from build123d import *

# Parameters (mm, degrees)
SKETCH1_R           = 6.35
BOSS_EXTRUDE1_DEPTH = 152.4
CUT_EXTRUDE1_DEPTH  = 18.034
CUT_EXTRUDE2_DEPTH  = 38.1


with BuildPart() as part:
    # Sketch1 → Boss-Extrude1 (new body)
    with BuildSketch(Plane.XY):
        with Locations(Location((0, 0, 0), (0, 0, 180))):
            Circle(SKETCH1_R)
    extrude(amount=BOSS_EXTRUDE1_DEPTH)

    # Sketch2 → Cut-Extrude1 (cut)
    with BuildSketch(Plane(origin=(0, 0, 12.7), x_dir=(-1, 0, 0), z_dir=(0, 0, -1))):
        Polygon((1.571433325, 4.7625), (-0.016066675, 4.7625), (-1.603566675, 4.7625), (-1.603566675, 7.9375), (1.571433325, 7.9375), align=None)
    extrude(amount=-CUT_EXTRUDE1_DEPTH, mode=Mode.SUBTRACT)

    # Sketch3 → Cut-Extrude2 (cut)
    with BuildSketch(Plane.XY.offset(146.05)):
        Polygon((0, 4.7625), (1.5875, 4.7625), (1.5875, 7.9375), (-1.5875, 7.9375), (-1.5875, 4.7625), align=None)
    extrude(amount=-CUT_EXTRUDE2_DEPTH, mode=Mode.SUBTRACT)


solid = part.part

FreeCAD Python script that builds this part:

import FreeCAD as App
import Part
import Sketcher
from FreeCAD import Vector
Q = App.Units.Quantity

doc = App.newDocument("Part")
params = doc.addObject("Spreadsheet::Sheet", "Params")
for row, (alias, value) in enumerate([
    ("sketch1_diameter", "0.5 in"),
    ("pad1_length", "6 in"),
    ("sketch2_width", "0.125 in"),
    ("pocket1_length", "0.71 in"),
    ("sketch3_width", "0.125 in"),
    ("pocket2_length", "1.5 in"),
], start=1):
    params.set(f"A{row}", alias)
    params.set(f"B{row}", "=" + value)
    params.setAlias(f"B{row}", alias)

body = doc.addObject("PartDesign::Body", "Body")

sketch1 = doc.addObject("Sketcher::SketchObject", "Sketch")
body.addObject(sketch1)
sketch1.AttachmentSupport = (doc.XY_Plane, [""])
sketch1.MapMode = "FlatFace"
sketch1.addGeometry(Part.Circle(Vector(0, 0, 0), Vector(0, 0, 1), 6), False)
sketch1.addConstraint([
    Sketcher.Constraint("Coincident", 0, 3, -1, 1),
    Sketcher.Constraint("Diameter", 0, Q("0.5 in")),
])
sketch1.setExpression("Constraints[1]", "Params.sketch1_diameter")
pad1 = doc.addObject("PartDesign::Pad", "Pad")
body.addObject(pad1)
pad1.Profile = sketch1
pad1.setExpression("Length", "Params.pad1_length")

sketch2 = doc.addObject("Sketcher::SketchObject", "Sketch001")
body.addObject(sketch2)
sketch2.AttachmentSupport = (doc.XY_Plane, [""])
sketch2.MapMode = "FlatFace"
sketch2.AttachmentOffset = App.Placement(Vector(0, 0, 0.5 * 25.4), App.Rotation())
sketch2.addGeometry([
    Part.LineSegment(Vector(1.6, 4.8, 0), Vector(-1.6, 4.8, 0)),
    Part.LineSegment(Vector(-1.6, 4.8, 0), Vector(-1.6, 7.9, 0)),
    Part.LineSegment(Vector(-1.6, 7.9, 0), Vector(1.6, 7.9, 0)),
    Part.LineSegment(Vector(1.6, 7.9, 0), Vector(1.6, 4.8, 0)),
], False)
sketch2.addConstraint([
    Sketcher.Constraint("Coincident", 0, 2, 1, 1),
    Sketcher.Constraint("Coincident", 1, 2, 2, 1),
    Sketcher.Constraint("Coincident", 2, 2, 3, 1),
    Sketcher.Constraint("Coincident", 3, 2, 0, 1),
    Sketcher.Constraint("Horizontal", 0),
    Sketcher.Constraint("Vertical", 1),
    Sketcher.Constraint("Horizontal", 2),
    Sketcher.Constraint("Vertical", 3),
    Sketcher.Constraint("Equal", 2, 1),
    Sketcher.Constraint("DistanceX", 0, 2, 0, 1, Q("0.125 in")),
    Sketcher.Constraint("DistanceY", -1, 1, 0, 2, Q("0.1875 in")),
    Sketcher.Constraint("DistanceX", 0, 2, -1, 1, 1.571433),
])
sketch2.setExpression("Constraints[9]", "Params.sketch2_width")
pocket1 = doc.addObject("PartDesign::Pocket", "Pocket")
body.addObject(pocket1)
pocket1.Profile = sketch2
pocket1.setExpression("Length", "Params.pocket1_length")
pocket1.Reversed = True

sketch3 = doc.addObject("Sketcher::SketchObject", "Sketch002")
body.addObject(sketch3)
sketch3.AttachmentSupport = (doc.XY_Plane, [""])
sketch3.MapMode = "FlatFace"
sketch3.AttachmentOffset = App.Placement(Vector(0, 0, 5.75 * 25.4), App.Rotation())
sketch3.addGeometry([
    Part.LineSegment(Vector(1.6, 4.8, 0), Vector(1.6, 7.9, 0)),
    Part.LineSegment(Vector(1.6, 7.9, 0), Vector(-1.6, 7.9, 0)),
    Part.LineSegment(Vector(-1.6, 7.9, 0), Vector(-1.6, 4.8, 0)),
    Part.LineSegment(Vector(-1.6, 4.8, 0), Vector(1.6, 4.8, 0)),
], False)
sketch3.addConstraint([
    Sketcher.Constraint("Coincident", 0, 2, 1, 1),
    Sketcher.Constraint("Coincident", 1, 2, 2, 1),
    Sketcher.Constraint("Coincident", 2, 2, 3, 1),
    Sketcher.Constraint("Coincident", 3, 2, 0, 1),
    Sketcher.Constraint("Vertical", 0),
    Sketcher.Constraint("Horizontal", 1),
    Sketcher.Constraint("Vertical", 2),
    Sketcher.Constraint("Horizontal", 3),
    Sketcher.Constraint("Equal", 3, 0),
    Sketcher.Constraint("DistanceX", 1, 2, 1, 1, Q("0.125 in")),
    Sketcher.Constraint("DistanceX", -1, 1, 0, 2, Q("0.0625 in")),
    Sketcher.Constraint("DistanceY", -1, 1, 0, 2, Q("0.3125 in")),
])
sketch3.setExpression("Constraints[9]", "Params.sketch3_width")
pocket2 = doc.addObject("PartDesign::Pocket", "Pocket001")
body.addObject(pocket2)
pocket2.Profile = sketch3
pocket2.setExpression("Length", "Params.pocket2_length")

doc.recompute()
